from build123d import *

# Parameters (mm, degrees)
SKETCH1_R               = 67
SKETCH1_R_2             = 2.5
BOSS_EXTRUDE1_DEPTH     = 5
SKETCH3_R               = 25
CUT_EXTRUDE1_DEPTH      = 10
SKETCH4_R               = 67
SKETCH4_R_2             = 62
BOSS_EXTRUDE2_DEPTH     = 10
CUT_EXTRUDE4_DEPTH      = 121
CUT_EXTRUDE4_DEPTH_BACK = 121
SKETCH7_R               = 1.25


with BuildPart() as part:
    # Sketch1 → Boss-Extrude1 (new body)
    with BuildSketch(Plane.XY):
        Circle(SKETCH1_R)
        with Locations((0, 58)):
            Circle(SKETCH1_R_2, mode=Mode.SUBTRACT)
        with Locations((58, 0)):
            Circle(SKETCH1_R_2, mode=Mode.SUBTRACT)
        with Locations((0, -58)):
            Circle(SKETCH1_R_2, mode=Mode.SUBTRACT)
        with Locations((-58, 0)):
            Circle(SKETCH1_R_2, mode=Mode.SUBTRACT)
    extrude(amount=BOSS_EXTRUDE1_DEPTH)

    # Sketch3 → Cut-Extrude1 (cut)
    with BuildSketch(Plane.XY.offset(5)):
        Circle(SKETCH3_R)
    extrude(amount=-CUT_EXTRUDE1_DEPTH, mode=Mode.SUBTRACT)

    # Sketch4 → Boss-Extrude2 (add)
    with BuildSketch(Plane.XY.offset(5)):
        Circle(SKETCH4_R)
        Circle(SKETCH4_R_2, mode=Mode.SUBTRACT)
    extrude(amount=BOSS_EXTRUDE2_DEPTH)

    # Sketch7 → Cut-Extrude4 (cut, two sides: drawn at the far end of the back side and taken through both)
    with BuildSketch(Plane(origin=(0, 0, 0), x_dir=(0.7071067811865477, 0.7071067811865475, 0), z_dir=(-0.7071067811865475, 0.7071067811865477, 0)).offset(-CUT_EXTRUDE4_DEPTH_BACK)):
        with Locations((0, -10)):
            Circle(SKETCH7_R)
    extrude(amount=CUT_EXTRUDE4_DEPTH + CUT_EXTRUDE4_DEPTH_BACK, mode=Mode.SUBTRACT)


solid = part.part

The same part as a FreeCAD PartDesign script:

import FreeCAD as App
import Part
import Sketcher
from FreeCAD import Vector
Q = App.Units.Quantity

doc = App.newDocument("Part")
body = doc.addObject("PartDesign::Body", "Body")

# Sketch on XY plane
sketch1 = doc.addObject("Sketcher::SketchObject", "Sketch")
body.addObject(sketch1)
sketch1.AttachmentSupport = (doc.XY_Plane, [""])
sketch1.MapMode = "FlatFace"
sketch1.addGeometry(Part.Circle(Vector(0, 0, 0), Vector(0, 0, 1), 67), False)
sketch1.addGeometry(Part.Circle(Vector(0, -58, 0), Vector(0, 0, 1), 2.5), False)
sketch1.addGeometry(Part.Circle(Vector(-58, 0, 0), Vector(0, 0, 1), 2.5), False)
sketch1.addGeometry(Part.Circle(Vector(58, 0, 0), Vector(0, 0, 1), 2.5), False)
sketch1.addGeometry(Part.Circle(Vector(0, 58, 0), Vector(0, 0, 1), 2.5), False)
sketch1.addConstraint(Sketcher.Constraint("Coincident", 0, 3, -1, 1))
sketch1.addConstraint(Sketcher.Constraint("Equal", 1, 2))
sketch1.addConstraint(Sketcher.Constraint("Equal", 2, 3))
sketch1.addConstraint(Sketcher.Constraint("Equal", 3, 4))
sketch1.addConstraint(Sketcher.Constraint("Symmetric", 2, 3, 3, 3, -1, 1))
sketch1.addConstraint(Sketcher.Constraint("Symmetric", 1, 3, 4, 3, -1, 1))
sketch1.addConstraint(Sketcher.Constraint("PointOnObject", 1, 3, -2))
sketch1.addConstraint(Sketcher.Constraint("PointOnObject", 2, 3, -1))
sketch1.addConstraint(Sketcher.Constraint("Diameter", 0, Q("134 mm")))
sketch1.addConstraint(Sketcher.Constraint("Diameter", 1, Q("5 mm")))
sketch1.addConstraint(Sketcher.Constraint("DistanceY", 1, 3, -1, 1, Q("58 mm")))
sketch1.addConstraint(Sketcher.Constraint("DistanceX", 2, 3, -1, 1, Q("58 mm")))
pad1 = doc.addObject("PartDesign::Pad", "Pad")
body.addObject(pad1)
pad1.Profile = sketch1
pad1.Length = 5

# Sketch on XY plane
sketch2 = doc.addObject("Sketcher::SketchObject", "Sketch001")
body.addObject(sketch2)
sketch2.AttachmentSupport = (doc.XY_Plane, [""])
sketch2.MapMode = "FlatFace"
sketch2.AttachmentOffset = App.Placement(Vector(0, 0, 5), App.Rotation())
sketch2.addGeometry(Part.Circle(Vector(0, 0, 0), Vector(0, 0, 1), 25), False)
sketch2.addConstraint(Sketcher.Constraint("Coincident", 0, 3, -1, 1))
sketch2.addConstraint(Sketcher.Constraint("Diameter", 0, Q("50 mm")))
pocket1 = doc.addObject("PartDesign::Pocket", "Pocket")
body.addObject(pocket1)
pocket1.Profile = sketch2
pocket1.Length = 10

# Sketch on XY plane
sketch3 = doc.addObject("Sketcher::SketchObject", "Sketch002")
body.addObject(sketch3)
sketch3.AttachmentSupport = (doc.XY_Plane, [""])
sketch3.MapMode = "FlatFace"
sketch3.AttachmentOffset = App.Placement(Vector(0, 0, 5), App.Rotation())
sketch3.addGeometry(Part.Circle(Vector(0, 0, 0), Vector(0, 0, 1), 67), False)
sketch3.addGeometry(Part.Circle(Vector(0, 0, 0), Vector(0, 0, 1), 62), False)
sketch3.addConstraint(Sketcher.Constraint("Coincident", 0, 3, -1, 1))
sketch3.addConstraint(Sketcher.Constraint("Coincident", 1, 3, -1, 1))
sketch3.addConstraint(Sketcher.Constraint("Diameter", 0, Q("134 mm")))
sketch3.addConstraint(Sketcher.Constraint("Diameter", 1, Q("124 mm")))
pad2 = doc.addObject("PartDesign::Pad", "Pad001")
body.addObject(pad2)
pad2.Profile = sketch3
pad2.Length = 10

# Sketch on an angled plane
sketch4 = doc.addObject("Sketcher::SketchObject", "Sketch003")
body.addObject(sketch4)
sketch4.Placement = App.Placement(Vector(0, 0, 0), App.Rotation(Vector(0.707106781, 0.707106781, 0), Vector(0, 0, -0.999999999), Vector(-0.707106781, 0.707106781, 0), "ZXY"))
sketch4.addGeometry(Part.Circle(Vector(0, -10, 0), Vector(0, 0, 1), 1.2), False)
sketch4.addConstraint(Sketcher.Constraint("PointOnObject", 0, 3, -2))
sketch4.addConstraint(Sketcher.Constraint("Diameter", 0, Q("2.5 mm")))
sketch4.addConstraint(Sketcher.Constraint("DistanceY", 0, 3, -1, 1, Q("10 mm")))
pocket2 = doc.addObject("PartDesign::Pocket", "Pocket001")
body.addObject(pocket2)
pocket2.Profile = sketch4
pocket2.Type = "ThroughAll"
pocket2.Midplane = True

doc.recompute()
